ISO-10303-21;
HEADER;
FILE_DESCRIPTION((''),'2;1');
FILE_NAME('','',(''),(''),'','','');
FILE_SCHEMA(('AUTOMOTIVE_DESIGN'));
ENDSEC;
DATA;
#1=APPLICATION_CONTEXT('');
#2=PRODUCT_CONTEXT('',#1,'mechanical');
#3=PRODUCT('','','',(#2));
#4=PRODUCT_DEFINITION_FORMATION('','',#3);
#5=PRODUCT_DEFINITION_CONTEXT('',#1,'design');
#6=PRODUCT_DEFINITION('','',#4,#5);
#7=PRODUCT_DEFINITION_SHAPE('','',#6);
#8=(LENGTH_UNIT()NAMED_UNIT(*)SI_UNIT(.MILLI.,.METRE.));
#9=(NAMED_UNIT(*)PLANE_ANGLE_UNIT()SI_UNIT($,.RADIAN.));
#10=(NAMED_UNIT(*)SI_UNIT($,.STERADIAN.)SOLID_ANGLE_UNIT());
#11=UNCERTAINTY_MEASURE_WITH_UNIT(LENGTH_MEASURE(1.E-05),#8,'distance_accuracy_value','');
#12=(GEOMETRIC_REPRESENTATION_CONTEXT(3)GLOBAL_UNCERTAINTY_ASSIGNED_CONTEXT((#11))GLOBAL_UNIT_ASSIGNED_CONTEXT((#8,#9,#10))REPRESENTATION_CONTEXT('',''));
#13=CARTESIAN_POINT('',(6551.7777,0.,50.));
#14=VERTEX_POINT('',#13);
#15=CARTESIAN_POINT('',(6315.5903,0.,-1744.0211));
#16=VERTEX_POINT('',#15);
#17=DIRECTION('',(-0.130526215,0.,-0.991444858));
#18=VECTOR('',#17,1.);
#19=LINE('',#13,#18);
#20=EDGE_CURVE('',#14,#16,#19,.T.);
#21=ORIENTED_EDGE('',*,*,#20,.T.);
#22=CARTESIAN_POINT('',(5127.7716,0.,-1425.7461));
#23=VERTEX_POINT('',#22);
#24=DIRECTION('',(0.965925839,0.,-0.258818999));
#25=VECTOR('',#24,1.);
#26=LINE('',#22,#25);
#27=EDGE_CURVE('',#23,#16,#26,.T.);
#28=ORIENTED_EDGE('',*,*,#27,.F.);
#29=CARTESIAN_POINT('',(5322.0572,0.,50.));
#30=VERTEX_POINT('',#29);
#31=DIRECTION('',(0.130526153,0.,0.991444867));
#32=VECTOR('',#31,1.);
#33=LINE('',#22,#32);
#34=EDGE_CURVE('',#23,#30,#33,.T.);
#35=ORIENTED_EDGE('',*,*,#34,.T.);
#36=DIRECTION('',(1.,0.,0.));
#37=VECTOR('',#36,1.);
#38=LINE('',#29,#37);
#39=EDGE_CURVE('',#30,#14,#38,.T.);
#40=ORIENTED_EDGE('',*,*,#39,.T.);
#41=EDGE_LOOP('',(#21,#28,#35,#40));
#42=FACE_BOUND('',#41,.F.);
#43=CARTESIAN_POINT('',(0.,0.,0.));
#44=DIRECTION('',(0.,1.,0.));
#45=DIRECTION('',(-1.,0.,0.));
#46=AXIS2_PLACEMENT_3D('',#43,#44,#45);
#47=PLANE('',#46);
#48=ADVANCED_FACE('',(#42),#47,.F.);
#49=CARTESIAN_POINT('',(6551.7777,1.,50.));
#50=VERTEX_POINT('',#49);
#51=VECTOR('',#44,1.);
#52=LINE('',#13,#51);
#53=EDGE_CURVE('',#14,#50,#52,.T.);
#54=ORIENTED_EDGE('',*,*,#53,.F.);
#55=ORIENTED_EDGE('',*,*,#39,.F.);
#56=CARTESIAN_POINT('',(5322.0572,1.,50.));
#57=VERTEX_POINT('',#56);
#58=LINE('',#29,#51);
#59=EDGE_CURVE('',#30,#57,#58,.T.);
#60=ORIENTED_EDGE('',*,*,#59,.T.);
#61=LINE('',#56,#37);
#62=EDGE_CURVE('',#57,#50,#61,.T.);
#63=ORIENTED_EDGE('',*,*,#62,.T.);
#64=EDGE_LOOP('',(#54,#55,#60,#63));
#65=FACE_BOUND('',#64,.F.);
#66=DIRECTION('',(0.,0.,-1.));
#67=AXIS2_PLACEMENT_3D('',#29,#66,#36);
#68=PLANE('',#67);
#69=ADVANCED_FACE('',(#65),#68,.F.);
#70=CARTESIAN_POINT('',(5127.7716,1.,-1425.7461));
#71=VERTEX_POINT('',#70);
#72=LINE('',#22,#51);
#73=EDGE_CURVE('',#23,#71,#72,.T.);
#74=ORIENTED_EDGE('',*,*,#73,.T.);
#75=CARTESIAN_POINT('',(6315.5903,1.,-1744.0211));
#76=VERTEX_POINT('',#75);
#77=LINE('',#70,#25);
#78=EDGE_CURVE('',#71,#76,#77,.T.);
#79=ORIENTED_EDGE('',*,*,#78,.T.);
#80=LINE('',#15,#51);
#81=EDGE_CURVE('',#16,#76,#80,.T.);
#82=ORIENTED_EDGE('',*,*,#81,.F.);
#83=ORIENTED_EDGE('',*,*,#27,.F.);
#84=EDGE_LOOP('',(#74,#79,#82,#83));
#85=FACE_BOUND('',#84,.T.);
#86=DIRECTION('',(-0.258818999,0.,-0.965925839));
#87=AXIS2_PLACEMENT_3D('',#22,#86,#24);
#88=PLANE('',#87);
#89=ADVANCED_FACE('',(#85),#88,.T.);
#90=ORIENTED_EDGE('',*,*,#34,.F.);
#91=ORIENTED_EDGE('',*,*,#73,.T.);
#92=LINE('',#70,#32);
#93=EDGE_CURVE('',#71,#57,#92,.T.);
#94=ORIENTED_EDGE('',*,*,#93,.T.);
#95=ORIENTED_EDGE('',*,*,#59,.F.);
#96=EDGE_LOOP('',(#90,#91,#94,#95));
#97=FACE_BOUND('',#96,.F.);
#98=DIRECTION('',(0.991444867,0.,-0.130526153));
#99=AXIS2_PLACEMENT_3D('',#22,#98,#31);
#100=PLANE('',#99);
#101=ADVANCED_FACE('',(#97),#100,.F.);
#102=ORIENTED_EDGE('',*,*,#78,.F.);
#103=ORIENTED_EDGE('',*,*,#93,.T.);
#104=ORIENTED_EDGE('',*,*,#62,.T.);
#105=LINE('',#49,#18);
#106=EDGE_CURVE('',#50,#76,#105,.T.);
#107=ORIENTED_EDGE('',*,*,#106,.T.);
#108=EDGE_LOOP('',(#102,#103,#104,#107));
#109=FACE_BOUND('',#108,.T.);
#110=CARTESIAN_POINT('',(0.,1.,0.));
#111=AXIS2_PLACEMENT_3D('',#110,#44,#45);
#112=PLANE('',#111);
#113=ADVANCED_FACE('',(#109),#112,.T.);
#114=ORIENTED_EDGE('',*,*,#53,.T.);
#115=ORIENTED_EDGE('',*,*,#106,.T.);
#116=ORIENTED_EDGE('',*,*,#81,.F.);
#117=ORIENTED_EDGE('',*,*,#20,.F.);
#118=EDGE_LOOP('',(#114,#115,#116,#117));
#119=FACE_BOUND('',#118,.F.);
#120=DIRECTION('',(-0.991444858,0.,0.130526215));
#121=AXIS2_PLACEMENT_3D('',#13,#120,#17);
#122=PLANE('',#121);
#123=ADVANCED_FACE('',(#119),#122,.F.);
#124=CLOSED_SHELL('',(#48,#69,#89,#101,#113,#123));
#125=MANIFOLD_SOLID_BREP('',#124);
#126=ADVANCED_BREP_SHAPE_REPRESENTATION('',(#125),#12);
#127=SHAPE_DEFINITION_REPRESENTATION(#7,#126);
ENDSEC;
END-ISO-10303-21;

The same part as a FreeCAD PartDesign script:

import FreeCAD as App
import Part
import Sketcher

V = App.Vector
Q = App.Units.Quantity


def add_polygon(sketch, points):
    """Adds a closed chain of lines whose ends are joined by coincident constraints."""
    first, n = sketch.GeometryCount, len(points)
    for a, b in zip(points, points[1:] + points[:1]):
        sketch.addGeometry(Part.LineSegment(App.Vector(*a, 0), App.Vector(*b, 0)), False)
    for i in range(n):
        sketch.addConstraint(Sketcher.Constraint("Coincident", first + i, 2, first + (i + 1) % n, 1))

doc = App.newDocument("Part")
body = doc.addObject("PartDesign::Body", "Body")

# Sketch on XZ plane
sketch1 = body.newObject("Sketcher::SketchObject", "Sketch")
sketch1.AttachmentSupport = (doc.getObject("XZ_Plane"), [""])
sketch1.MapMode = "FlatFace"
add_polygon(sketch1, [(5322, 50), (6552, 50), (6316, -1744), (5128, -1426)])  # lines 0-3
sketch1.addConstraint([
    Sketcher.Constraint("Horizontal", 0),
    Sketcher.Constraint("Parallel", 1, 3),
    Sketcher.Constraint("Angle", 2, Q("165 deg")),
    Sketcher.Constraint("DistanceY", -1, 1, 0, 2, 50.0),
    Sketcher.Constraint("Angle", 1, Q("-97.5 deg")),
    Sketcher.Constraint("DistanceX", 0, 1, 0, 2, 1229.7205),
    Sketcher.Constraint("DistanceY", 1, 2, -1, 1, 1744.021),
    Sketcher.Constraint("DistanceX", -1, 1, 0, 2, 6551.7777),
])
pad1 = body.newObject("PartDesign::Pad", "Pad")
pad1.Profile = sketch1
pad1.Length = 1
pad1.Reversed = True

doc.recompute()
